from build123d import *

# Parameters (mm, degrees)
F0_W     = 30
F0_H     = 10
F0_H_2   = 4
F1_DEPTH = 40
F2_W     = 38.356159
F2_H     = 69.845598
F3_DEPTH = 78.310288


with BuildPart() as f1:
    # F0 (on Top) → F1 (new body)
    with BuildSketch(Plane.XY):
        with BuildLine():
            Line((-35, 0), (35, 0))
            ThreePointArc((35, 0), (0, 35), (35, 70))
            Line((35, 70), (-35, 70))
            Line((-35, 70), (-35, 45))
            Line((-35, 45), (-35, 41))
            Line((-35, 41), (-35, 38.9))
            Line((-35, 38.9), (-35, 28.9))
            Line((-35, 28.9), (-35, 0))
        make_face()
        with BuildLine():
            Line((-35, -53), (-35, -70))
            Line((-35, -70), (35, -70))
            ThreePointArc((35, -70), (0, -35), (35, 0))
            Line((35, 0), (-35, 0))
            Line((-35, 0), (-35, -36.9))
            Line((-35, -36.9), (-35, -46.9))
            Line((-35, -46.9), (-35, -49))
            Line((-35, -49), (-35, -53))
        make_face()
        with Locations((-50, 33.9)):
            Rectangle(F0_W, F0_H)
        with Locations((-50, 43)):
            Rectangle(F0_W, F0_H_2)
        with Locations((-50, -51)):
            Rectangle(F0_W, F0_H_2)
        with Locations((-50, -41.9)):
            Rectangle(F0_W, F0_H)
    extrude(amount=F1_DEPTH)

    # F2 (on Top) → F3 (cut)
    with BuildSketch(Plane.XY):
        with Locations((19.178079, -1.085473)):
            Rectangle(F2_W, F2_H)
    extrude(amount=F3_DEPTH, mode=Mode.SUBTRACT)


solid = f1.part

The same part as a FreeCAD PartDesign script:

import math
import FreeCAD as App
import Part
import Sketcher
from FreeCAD import Vector

doc = App.newDocument("Part")
body = doc.addObject("PartDesign::Body", "Body")

# Sketch on XY plane
sketch1 = body.newObject("Sketcher::SketchObject", "Sketch")
sketch1.AttachmentSupport = (doc.getObject("XY_Plane"), [""])
sketch1.MapMode = "FlatFace"
sketch1.addGeometry([
    Part.ArcOfCircle(Part.Circle(Vector(35, 35, 0), Vector(0, 0, 1), 35), math.radians(90), math.radians(270)),  # 0
    Part.LineSegment(Vector(35, 70, 0), Vector(-35, 70, 0)),  # 1
    Part.LineSegment(Vector(-35, 70, 0), Vector(-35, 45, 0)),  # 2
    Part.LineSegment(Vector(-35, 45, 0), Vector(-65, 45, 0)),  # 3
    Part.LineSegment(Vector(-65, 45, 0), Vector(-65, 41, 0)),  # 4
    Part.LineSegment(Vector(-65, 41, 0), Vector(-35, 41, 0)),  # 5
    Part.LineSegment(Vector(-35, 41, 0), Vector(-35, 38.9, 0)),  # 6
    Part.LineSegment(Vector(-35, 38.9, 0), Vector(-65, 38.9, 0)),  # 7
    Part.LineSegment(Vector(-65, 38.9, 0), Vector(-65, 28.9, 0)),  # 8
    Part.LineSegment(Vector(-65, 28.9, 0), Vector(-35, 28.9, 0)),  # 9
    Part.LineSegment(Vector(-35, 28.9, 0), Vector(-35, -36.9, 0)),  # 10
    Part.LineSegment(Vector(-35, -36.9, 0), Vector(-65, -36.9, 0)),  # 11
    Part.LineSegment(Vector(-65, -36.9, 0), Vector(-65, -46.9, 0)),  # 12
    Part.LineSegment(Vector(-65, -46.9, 0), Vector(-35, -46.9, 0)),  # 13
    Part.LineSegment(Vector(-35, -46.9, 0), Vector(-35, -49, 0)),  # 14
    Part.LineSegment(Vector(-35, -49, 0), Vector(-65, -49, 0)),  # 15
    Part.LineSegment(Vector(-65, -49, 0), Vector(-65, -53, 0)),  # 16
    Part.LineSegment(Vector(-65, -53, 0), Vector(-35, -53, 0)),  # 17
    Part.LineSegment(Vector(-35, -53, 0), Vector(-35, -70, 0)),  # 18
    Part.LineSegment(Vector(-35, -70, 0), Vector(35, -70, 0)),  # 19
    Part.ArcOfCircle(Part.Circle(Vector(35, -35, 0), Vector(0, 0, 1), 35), math.radians(90), math.radians(270)),  # 20
], False)
sketch1.addConstraint([
    Sketcher.Constraint("Tangent", 0, 1, 1, 1),
    Sketcher.Constraint("Coincident", 1, 2, 2, 1),
    Sketcher.Constraint("Coincident", 2, 2, 3, 1),
    Sketcher.Constraint("Coincident", 3, 2, 4, 1),
    Sketcher.Constraint("Coincident", 4, 2, 5, 1),
    Sketcher.Constraint("Coincident", 5, 2, 6, 1),
    Sketcher.Constraint("Coincident", 6, 2, 7, 1),
    Sketcher.Constraint("Coincident", 7, 2, 8, 1),
    Sketcher.Constraint("Coincident", 8, 2, 9, 1),
    Sketcher.Constraint("Coincident", 9, 2, 10, 1),
    Sketcher.Constraint("Coincident", 10, 2, 11, 1),
    Sketcher.Constraint("Coincident", 11, 2, 12, 1),
    Sketcher.Constraint("Coincident", 12, 2, 13, 1),
    Sketcher.Constraint("Coincident", 13, 2, 14, 1),
    Sketcher.Constraint("Coincident", 14, 2, 15, 1),
    Sketcher.Constraint("Coincident", 15, 2, 16, 1),
    Sketcher.Constraint("Coincident", 16, 2, 17, 1),
    Sketcher.Constraint("Coincident", 17, 2, 18, 1),
    Sketcher.Constraint("Coincident", 18, 2, 19, 1),
    Sketcher.Constraint("Tangent", 19, 2, 20, 2),
    Sketcher.Constraint("Tangent", 20, 1, 0, 2),
    Sketcher.Constraint("Horizontal", 1),
    Sketcher.Constraint("Vertical", 2),
    Sketcher.Constraint("Horizontal", 3),
    Sketcher.Constraint("Vertical", 4),
    Sketcher.Constraint("Horizontal", 5),
    Sketcher.Constraint("Vertical", 6),
    Sketcher.Constraint("Horizontal", 7),
    Sketcher.Constraint("Vertical", 8),
    Sketcher.Constraint("Horizontal", 9),
    Sketcher.Constraint("Vertical", 10),
    Sketcher.Constraint("Horizontal", 11),
    Sketcher.Constraint("Vertical", 12),
    Sketcher.Constraint("Horizontal", 13),
    Sketcher.Constraint("Vertical", 14),
    Sketcher.Constraint("Horizontal", 15),
    Sketcher.Constraint("Vertical", 16),
    Sketcher.Constraint("Horizontal", 17),
    Sketcher.Constraint("Vertical", 18),
    Sketcher.Constraint("Horizontal", 19),
    Sketcher.Constraint("Equal", 0, 20),
    Sketcher.Constraint("Symmetric", 0, 1, 18, 2, -1, 1),
    Sketcher.Constraint("Vertical", 0, 3, 20, 3),
    Sketcher.Constraint("Vertical", 2, 2, 5, 2),
    Sketcher.Constraint("Vertical", 4, 2, 7, 2),
    Sketcher.Constraint("Vertical", 6, 2, 9, 2),
    Sketcher.Constraint("Vertical", 8, 2, 11, 2),
    Sketcher.Constraint("Vertical", 10, 2, 13, 2),
    Sketcher.Constraint("Vertical", 12, 2, 15, 2),
    Sketcher.Constraint("Vertical", 14, 2, 17, 2),
    Sketcher.Constraint("Equal", 8, 12),
    Sketcher.Constraint("Equal", 6, 14),
    Sketcher.Constraint("Equal", 4, 16),
    Sketcher.Constraint("Radius", 0, 35.0),
    Sketcher.Constraint("DistanceX", 1, 2, 1, 1, 70.0),
    Sketcher.Constraint("DistanceX", 3, 2, 3, 1, 30.0),
    Sketcher.Constraint("DistanceY", 2, 2, 2, 1, 25.0),
    Sketcher.Constraint("DistanceY", 4, 2, 4, 1, 4.0),
    Sketcher.Constraint("DistanceY", 8, 2, 8, 1, 10.0),
    Sketcher.Constraint("DistanceY", 18, 2, 18, 1, 17.0),
    Sketcher.Constraint("DistanceY", 6, 2, 6, 1, 2.1),
])
pad1 = body.newObject("PartDesign::Pad", "Pad")
pad1.Profile = sketch1
pad1.Length = 40

# Sketch on XY plane
sketch2 = body.newObject("Sketcher::SketchObject", "Sketch001")
sketch2.AttachmentSupport = (doc.getObject("XY_Plane"), [""])
sketch2.MapMode = "FlatFace"
sketch2.addGeometry([
    Part.LineSegment(Vector(0, 34, 0), Vector(0, -36, 0)),
    Part.LineSegment(Vector(0, -36, 0), Vector(38, -36, 0)),
    Part.LineSegment(Vector(38, -36, 0), Vector(38, 34, 0)),
    Part.LineSegment(Vector(38, 34, 0), Vector(0, 34, 0)),
], False)
sketch2.addConstraint([
    Sketcher.Constraint("Coincident", 0, 2, 1, 1),
    Sketcher.Constraint("Coincident", 1, 2, 2, 1),
    Sketcher.Constraint("Coincident", 2, 2, 3, 1),
    Sketcher.Constraint("Coincident", 3, 2, 0, 1),
    Sketcher.Constraint("Vertical", 0),
    Sketcher.Constraint("Horizontal", 1),
    Sketcher.Constraint("Vertical", 2),
    Sketcher.Constraint("Horizontal", 3),
    Sketcher.Constraint("PointOnObject", 0, 2, -2),
    Sketcher.Constraint("DistanceX", 1, 1, 1, 2, 38.356159),
    Sketcher.Constraint("DistanceY", 0, 2, 0, 1, 69.845598),
    Sketcher.Constraint("DistanceY", 0, 2, -1, 1, 36.008272),
])
pocket1 = body.newObject("PartDesign::Pocket", "Pocket")
pocket1.Profile = sketch2
pocket1.Length = 78.310288
pocket1.Reversed = True

doc.recompute()
